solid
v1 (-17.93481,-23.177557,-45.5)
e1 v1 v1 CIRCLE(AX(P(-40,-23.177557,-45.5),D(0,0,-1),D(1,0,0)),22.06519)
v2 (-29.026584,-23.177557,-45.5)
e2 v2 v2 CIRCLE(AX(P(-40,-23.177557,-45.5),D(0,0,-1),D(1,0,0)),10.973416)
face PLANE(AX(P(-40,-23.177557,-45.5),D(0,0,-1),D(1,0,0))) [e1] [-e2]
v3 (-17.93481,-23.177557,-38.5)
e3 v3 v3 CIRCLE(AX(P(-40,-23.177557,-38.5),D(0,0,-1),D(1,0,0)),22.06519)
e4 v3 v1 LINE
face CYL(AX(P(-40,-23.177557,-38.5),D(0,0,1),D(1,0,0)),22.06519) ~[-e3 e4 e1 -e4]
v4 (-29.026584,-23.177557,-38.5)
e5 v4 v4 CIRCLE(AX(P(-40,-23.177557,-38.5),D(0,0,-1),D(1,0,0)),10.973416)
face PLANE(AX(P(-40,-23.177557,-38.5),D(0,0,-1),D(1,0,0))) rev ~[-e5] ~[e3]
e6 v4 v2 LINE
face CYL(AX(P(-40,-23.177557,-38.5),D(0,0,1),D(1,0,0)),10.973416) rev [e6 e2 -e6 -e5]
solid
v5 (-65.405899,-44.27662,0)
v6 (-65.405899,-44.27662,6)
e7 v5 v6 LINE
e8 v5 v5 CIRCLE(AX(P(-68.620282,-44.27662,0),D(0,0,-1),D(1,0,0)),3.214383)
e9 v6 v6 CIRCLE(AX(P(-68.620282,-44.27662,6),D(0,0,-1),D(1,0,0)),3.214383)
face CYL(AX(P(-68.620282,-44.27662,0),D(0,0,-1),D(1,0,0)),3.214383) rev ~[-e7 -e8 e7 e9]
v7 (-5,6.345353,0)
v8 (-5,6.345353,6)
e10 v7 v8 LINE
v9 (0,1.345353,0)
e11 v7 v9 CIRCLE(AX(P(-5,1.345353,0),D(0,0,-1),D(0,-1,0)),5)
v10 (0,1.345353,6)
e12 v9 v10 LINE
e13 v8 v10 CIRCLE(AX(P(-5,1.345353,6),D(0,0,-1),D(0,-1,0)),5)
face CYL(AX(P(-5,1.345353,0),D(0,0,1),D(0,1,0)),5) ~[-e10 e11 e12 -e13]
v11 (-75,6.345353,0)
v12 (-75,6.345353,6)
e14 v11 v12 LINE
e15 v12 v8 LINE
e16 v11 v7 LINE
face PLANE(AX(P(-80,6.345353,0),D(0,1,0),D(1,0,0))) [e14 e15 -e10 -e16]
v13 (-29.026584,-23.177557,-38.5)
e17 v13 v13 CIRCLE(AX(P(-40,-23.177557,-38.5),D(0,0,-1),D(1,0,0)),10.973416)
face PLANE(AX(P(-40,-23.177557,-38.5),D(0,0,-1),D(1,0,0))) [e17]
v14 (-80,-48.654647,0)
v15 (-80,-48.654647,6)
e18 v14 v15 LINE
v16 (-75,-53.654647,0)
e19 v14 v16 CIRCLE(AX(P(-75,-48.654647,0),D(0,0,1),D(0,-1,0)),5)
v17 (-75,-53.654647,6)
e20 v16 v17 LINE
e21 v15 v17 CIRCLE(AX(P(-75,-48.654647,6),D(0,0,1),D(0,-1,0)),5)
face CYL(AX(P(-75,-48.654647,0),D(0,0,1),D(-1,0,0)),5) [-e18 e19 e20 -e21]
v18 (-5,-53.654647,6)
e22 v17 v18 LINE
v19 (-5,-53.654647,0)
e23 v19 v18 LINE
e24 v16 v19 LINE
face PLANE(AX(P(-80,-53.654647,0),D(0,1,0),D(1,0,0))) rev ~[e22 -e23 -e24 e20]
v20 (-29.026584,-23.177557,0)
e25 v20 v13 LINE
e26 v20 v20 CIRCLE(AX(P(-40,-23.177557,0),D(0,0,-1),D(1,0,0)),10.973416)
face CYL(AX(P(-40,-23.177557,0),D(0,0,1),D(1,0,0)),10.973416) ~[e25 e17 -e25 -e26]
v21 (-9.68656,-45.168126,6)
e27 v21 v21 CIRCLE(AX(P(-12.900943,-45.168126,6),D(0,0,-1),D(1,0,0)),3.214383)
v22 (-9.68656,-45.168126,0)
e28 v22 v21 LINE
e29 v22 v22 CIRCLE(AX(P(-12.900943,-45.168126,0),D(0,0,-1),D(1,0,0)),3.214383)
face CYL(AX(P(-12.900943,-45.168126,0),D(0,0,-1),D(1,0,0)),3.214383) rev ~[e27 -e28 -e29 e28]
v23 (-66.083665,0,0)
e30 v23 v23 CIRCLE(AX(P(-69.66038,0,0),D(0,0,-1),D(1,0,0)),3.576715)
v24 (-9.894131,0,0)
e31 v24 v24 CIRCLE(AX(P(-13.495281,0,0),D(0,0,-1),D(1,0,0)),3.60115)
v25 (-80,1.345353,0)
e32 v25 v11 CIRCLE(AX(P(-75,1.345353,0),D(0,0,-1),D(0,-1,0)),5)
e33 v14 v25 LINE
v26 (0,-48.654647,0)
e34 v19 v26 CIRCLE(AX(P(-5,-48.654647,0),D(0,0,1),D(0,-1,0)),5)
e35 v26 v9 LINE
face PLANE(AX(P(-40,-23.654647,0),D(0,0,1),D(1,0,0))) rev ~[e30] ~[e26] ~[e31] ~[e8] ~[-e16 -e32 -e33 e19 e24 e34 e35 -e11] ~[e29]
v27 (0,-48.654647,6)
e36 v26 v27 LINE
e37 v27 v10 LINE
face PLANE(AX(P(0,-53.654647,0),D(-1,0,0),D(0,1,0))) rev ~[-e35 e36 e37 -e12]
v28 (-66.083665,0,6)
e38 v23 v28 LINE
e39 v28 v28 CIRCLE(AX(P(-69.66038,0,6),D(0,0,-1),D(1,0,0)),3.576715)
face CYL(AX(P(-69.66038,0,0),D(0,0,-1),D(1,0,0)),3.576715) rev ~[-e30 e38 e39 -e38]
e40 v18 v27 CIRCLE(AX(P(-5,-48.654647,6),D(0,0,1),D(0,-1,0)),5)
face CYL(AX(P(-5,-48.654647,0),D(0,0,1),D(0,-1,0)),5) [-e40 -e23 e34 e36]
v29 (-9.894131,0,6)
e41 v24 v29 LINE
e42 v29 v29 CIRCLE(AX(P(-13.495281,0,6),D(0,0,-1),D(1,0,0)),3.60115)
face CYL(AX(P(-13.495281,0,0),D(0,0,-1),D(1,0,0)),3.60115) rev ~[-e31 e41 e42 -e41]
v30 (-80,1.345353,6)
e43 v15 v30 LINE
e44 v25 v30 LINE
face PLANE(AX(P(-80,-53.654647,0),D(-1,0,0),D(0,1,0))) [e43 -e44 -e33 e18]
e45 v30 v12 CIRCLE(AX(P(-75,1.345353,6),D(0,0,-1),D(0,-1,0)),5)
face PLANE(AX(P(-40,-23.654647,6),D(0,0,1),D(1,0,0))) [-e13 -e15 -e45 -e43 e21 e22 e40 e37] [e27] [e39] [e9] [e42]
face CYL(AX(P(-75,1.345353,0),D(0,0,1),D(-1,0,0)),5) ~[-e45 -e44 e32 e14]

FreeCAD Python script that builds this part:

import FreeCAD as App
import Part
import Sketcher

V = App.Vector
Q = App.Units.Quantity


def edges_at(feature, points):
    """Names of the edges that pass closest to the given points."""
    edges = feature.Shape.Edges
    near = lambda p: min(range(len(edges)), key=lambda i: edges[i].distToShape(Part.Vertex(*p))[0])
    return sorted({f"Edge{near(p) + 1}" for p in points})

doc = App.newDocument("Part")
body = doc.addObject("PartDesign::Body", "Body")

# Sketch on XY plane
sketch1 = body.newObject("Sketcher::SketchObject", "Sketch")
sketch1.AttachmentSupport = (doc.getObject("XY_Plane"), [""])
sketch1.MapMode = "FlatFace"
sketch1.addGeometry(Part.LineSegment(V(-80, 6, 0), V(-80, -54, 0)), False)
sketch1.addGeometry(Part.LineSegment(V(-80, -54, 0), V(0, -54, 0)), False)
sketch1.addGeometry(Part.LineSegment(V(0, -54, 0), V(0, 6, 0)), False)
sketch1.addGeometry(Part.LineSegment(V(0, 6, 0), V(-80, 6, 0)), False)
sketch1.addConstraint(Sketcher.Constraint("Coincident", 0, 2, 1, 1))
sketch1.addConstraint(Sketcher.Constraint("Coincident", 1, 2, 2, 1))
sketch1.addConstraint(Sketcher.Constraint("Coincident", 2, 2, 3, 1))
sketch1.addConstraint(Sketcher.Constraint("Coincident", 3, 2, 0, 1))
sketch1.addConstraint(Sketcher.Constraint("Vertical", 0))
sketch1.addConstraint(Sketcher.Constraint("Horizontal", 1))
sketch1.addConstraint(Sketcher.Constraint("Vertical", 2))
sketch1.addConstraint(Sketcher.Constraint("Horizontal", 3))
sketch1.addConstraint(Sketcher.Constraint("PointOnObject", 1, 2, -2))
sketch1.addConstraint(Sketcher.Constraint("DistanceX", 1, 1, 1, 2, Q("80 mm")))
sketch1.addConstraint(Sketcher.Constraint("DistanceY", 0, 2, 0, 1, Q("60 mm")))
sketch1.addConstraint(Sketcher.Constraint("DistanceY", 0, 2, -1, 1, Q("53.654647 mm")))
pad1 = body.newObject("PartDesign::Pad", "Pad")
pad1.Profile = sketch1
pad1.Length = 6
doc.recompute()

fillet = body.newObject("PartDesign::Fillet", "Fillet")
fillet.Base = (pad1, edges_at(pad1, [(-80, -53.655, 3)]))
fillet.Radius = 5
doc.recompute()

fillet2 = body.newObject("PartDesign::Fillet", "Fillet001")
fillet2.Base = (fillet, edges_at(fillet, [(-80, 6.345, 3), (0, 6.345, 3), (0, -53.655, 3)]))
fillet2.Radius = 5

# Sketch on XY plane
sketch2 = body.newObject("Sketcher::SketchObject", "Sketch001")
sketch2.AttachmentSupport = (doc.getObject("XY_Plane"), [""])
sketch2.MapMode = "FlatFace"
sketch2.addGeometry(Part.Circle(V(-40, -23, 0), V(0, 0, 1), 11), False)
sketch2.addConstraint(Sketcher.Constraint("DistanceX", 0, 3, -1, 1, Q("40 mm")))
sketch2.addConstraint(Sketcher.Constraint("Diameter", 0, Q("21.946832 mm")))
sketch2.addConstraint(Sketcher.Constraint("DistanceY", 0, 3, -1, 1, Q("23.177557 mm")))
pad2 = body.newObject("PartDesign::Pad", "Pad001")
pad2.Profile = sketch2
pad2.Length = 38.5
pad2.Reversed = True

# Sketch on XY plane
sketch3 = body.newObject("Sketcher::SketchObject", "Sketch002")
sketch3.AttachmentSupport = (doc.getObject("XY_Plane"), [""])
sketch3.MapMode = "FlatFace"
sketch3.addGeometry(Part.Circle(V(-68.6, -44.3, 0), V(0, 0, 1), 3.2), False)
sketch3.addGeometry(Part.Circle(V(-12.9, -45.2, 0), V(0, 0, 1), 3.2), False)
sketch3.addConstraint(Sketcher.Constraint("Equal", 0, 1))
sketch3.addConstraint(Sketcher.Constraint("Diameter", 0, Q("6.428766 mm")))
sketch3.addConstraint(Sketcher.Constraint("DistanceY", 0, 3, -1, 1, Q("44.27662 mm")))
sketch3.addConstraint(Sketcher.Constraint("DistanceX", 0, 3, 1, 3, Q("55.719339 mm")))
sketch3.addConstraint(Sketcher.Constraint("DistanceX", 0, 3, -1, 1, Q("68.620282 mm")))
sketch3.addConstraint(Sketcher.Constraint("DistanceY", 1, 3, -1, 1, Q("45.168126 mm")))
pocket1 = body.newObject("PartDesign::Pocket", "Pocket")
pocket1.Profile = sketch3
pocket1.Type = "ThroughAll"
pocket1.Reversed = True

# Sketch on XY plane
sketch4 = body.newObject("Sketcher::SketchObject", "Sketch003")
sketch4.AttachmentSupport = (doc.getObject("XY_Plane"), [""])
sketch4.MapMode = "FlatFace"
sketch4.addGeometry(Part.Circle(V(-13.5, 0, 0), V(0, 0, 1), 3.6), False)
sketch4.addConstraint(Sketcher.Constraint("PointOnObject", 0, 3, -1))
sketch4.addConstraint(Sketcher.Constraint("Diameter", 0, Q("7.2023 mm")))
sketch4.addConstraint(Sketcher.Constraint("DistanceX", 0, 3, -1, 1, Q("13.495281 mm")))
pocket2 = body.newObject("PartDesign::Pocket", "Pocket001")
pocket2.Profile = sketch4
pocket2.Type = "ThroughAll"
pocket2.Reversed = True

# Sketch on XY plane
sketch5 = body.newObject("Sketcher::SketchObject", "Sketch004")
sketch5.AttachmentSupport = (doc.getObject("XY_Plane"), [""])
sketch5.MapMode = "FlatFace"
sketch5.addGeometry(Part.Circle(V(-69.7, 0, 0), V(0, 0, 1), 3.6), False)
sketch5.addConstraint(Sketcher.Constraint("PointOnObject", 0, 3, -1))
sketch5.addConstraint(Sketcher.Constraint("Diameter", 0, Q("7.15343 mm")))
sketch5.addConstraint(Sketcher.Constraint("DistanceX", 0, 3, -1, 1, Q("69.66038 mm")))
pocket3 = body.newObject("PartDesign::Pocket", "Pocket002")
pocket3.Profile = sketch5
pocket3.Type = "ThroughAll"
pocket3.Reversed = True
body2 = doc.addObject("PartDesign::Body", "Body001")

# Sketch on XY plane
sketch6 = body2.newObject("Sketcher::SketchObject", "Sketch005")
sketch6.AttachmentSupport = (doc.getObject("XY_Plane001"), [""])
sketch6.MapMode = "FlatFace"
sketch6.AttachmentOffset = App.Placement(V(0, 0, -38.5), App.Rotation())
sketch6.addGeometry(Part.Circle(V(-40, -23, 0), V(0, 0, 1), 22), False)
sketch6.addGeometry(Part.Circle(V(-40, -23, 0), V(0, 0, 1), 11), False)
sketch6.addConstraint(Sketcher.Constraint("Coincident", 1, 3, 0, 3))
sketch6.addConstraint(Sketcher.Constraint("DistanceX", 0, 3, -1, 1, Q("40 mm")))
sketch6.addConstraint(Sketcher.Constraint("Diameter", 0, Q("44.13038 mm")))
sketch6.addConstraint(Sketcher.Constraint("Diameter", 1, Q("21.946832 mm")))
sketch6.addConstraint(Sketcher.Constraint("DistanceY", 0, 3, -1, 1, Q("23.177557 mm")))
pad3 = body2.newObject("PartDesign::Pad", "Pad002")
pad3.Profile = sketch6
pad3.Length = 7
pad3.Reversed = True

doc.recompute()
